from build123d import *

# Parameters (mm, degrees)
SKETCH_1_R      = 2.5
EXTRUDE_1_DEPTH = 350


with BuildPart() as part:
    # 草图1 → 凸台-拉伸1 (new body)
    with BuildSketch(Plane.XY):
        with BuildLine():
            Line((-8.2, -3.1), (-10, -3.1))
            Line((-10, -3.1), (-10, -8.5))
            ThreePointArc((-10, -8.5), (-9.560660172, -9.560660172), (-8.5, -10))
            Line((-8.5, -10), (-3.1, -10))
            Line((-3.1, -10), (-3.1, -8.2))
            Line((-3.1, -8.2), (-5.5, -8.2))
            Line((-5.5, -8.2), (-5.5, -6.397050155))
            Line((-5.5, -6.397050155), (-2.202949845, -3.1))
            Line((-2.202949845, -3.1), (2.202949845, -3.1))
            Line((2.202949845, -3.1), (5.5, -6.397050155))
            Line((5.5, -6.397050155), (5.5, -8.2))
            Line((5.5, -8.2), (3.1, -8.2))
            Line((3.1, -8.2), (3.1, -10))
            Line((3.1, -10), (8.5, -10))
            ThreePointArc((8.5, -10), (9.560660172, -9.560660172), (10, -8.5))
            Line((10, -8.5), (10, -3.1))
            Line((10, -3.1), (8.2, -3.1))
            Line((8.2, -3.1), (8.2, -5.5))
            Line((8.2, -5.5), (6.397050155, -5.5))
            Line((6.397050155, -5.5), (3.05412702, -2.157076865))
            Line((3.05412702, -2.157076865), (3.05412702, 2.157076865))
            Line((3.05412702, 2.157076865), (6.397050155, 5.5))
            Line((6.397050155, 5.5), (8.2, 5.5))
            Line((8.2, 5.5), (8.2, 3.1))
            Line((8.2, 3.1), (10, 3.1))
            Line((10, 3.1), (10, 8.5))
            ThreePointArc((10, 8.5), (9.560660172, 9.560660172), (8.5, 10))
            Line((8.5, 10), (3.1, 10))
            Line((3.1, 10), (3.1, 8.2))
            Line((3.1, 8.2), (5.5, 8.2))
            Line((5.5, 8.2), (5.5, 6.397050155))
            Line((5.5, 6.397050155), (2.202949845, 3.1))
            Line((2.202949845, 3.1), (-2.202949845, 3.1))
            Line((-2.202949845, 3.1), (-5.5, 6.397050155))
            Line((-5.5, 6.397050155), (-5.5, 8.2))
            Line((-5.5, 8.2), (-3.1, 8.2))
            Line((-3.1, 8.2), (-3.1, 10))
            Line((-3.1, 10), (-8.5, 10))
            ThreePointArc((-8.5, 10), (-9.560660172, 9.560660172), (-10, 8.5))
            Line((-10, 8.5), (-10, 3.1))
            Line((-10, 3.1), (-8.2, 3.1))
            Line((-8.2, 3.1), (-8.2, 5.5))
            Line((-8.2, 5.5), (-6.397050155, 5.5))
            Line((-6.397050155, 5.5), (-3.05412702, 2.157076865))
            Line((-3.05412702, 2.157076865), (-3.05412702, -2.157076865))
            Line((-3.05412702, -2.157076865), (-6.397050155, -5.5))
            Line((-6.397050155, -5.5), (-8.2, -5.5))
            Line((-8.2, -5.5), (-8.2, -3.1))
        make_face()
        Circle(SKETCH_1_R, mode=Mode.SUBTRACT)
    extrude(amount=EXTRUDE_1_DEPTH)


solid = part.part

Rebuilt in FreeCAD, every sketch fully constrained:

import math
import FreeCAD as App
import Part
import Sketcher

V = App.Vector
Q = App.Units.Quantity

doc = App.newDocument("Part")
params = doc.addObject("Spreadsheet::Sheet", "Params")
for row, (alias, value) in enumerate([
    ("sketch1_diameter", "5 mm"),
    ("sketch1_radius", "1.5 mm"),
    ("sketch1_width", "1.8 mm"),
    ("sketch1_width2", "5.4 mm"),
    ("sketch1_width3", "2.4 mm"),
    ("pad1_length", "350 mm"),
], start=1):
    params.set(f"A{row}", alias)
    params.set(f"B{row}", "=" + value)
    params.setAlias(f"B{row}", alias)

body = doc.addObject("PartDesign::Body", "Body")

sketch1 = body.newObject("Sketcher::SketchObject", "Sketch")
sketch1.AttachmentSupport = (doc.getObject("XY_Plane"), [""])
sketch1.MapMode = "FlatFace"
sketch1.addGeometry([
    Part.LineSegment(V(-8.2, -3.1, 0), V(-10, -3.1, 0)),
    Part.LineSegment(V(-10, -3.1, 0), V(-10, -8.5, 0)),
    Part.ArcOfCircle(Part.Circle(V(-8.5, -8.5, 0), V(0, 0, 1), 1.5), math.radians(180), math.radians(270)),
    Part.LineSegment(V(-8.5, -10, 0), V(-3.1, -10, 0)),
    Part.LineSegment(V(-3.1, -10, 0), V(-3.1, -8.2, 0)),
    Part.LineSegment(V(-3.1, -8.2, 0), V(-5.5, -8.2, 0)),
    Part.LineSegment(V(-5.5, -8.2, 0), V(-5.5, -6.4, 0)),
    Part.LineSegment(V(-5.5, -6.4, 0), V(-2.2, -3.1, 0)),
    Part.LineSegment(V(-2.2, -3.1, 0), V(2.2, -3.1, 0)),
    Part.LineSegment(V(2.2, -3.1, 0), V(5.5, -6.4, 0)),
    Part.LineSegment(V(5.5, -6.4, 0), V(5.5, -8.2, 0)),
    Part.LineSegment(V(5.5, -8.2, 0), V(3.1, -8.2, 0)),
    Part.LineSegment(V(3.1, -8.2, 0), V(3.1, -10, 0)),
    Part.LineSegment(V(3.1, -10, 0), V(8.5, -10, 0)),
    Part.ArcOfCircle(Part.Circle(V(8.5, -8.5, 0), V(0, 0, 1), 1.5), math.radians(-90), math.radians(0)),
    Part.LineSegment(V(10, -8.5, 0), V(10, -3.1, 0)),
    Part.LineSegment(V(10, -3.1, 0), V(8.2, -3.1, 0)),
    Part.LineSegment(V(8.2, -3.1, 0), V(8.2, -5.5, 0)),
    Part.LineSegment(V(8.2, -5.5, 0), V(6.4, -5.5, 0)),
    Part.LineSegment(V(6.4, -5.5, 0), V(3.1, -2.2, 0)),
    Part.LineSegment(V(3.1, -2.2, 0), V(3.1, 2.2, 0)),
    Part.LineSegment(V(3.1, 2.2, 0), V(6.4, 5.5, 0)),
    Part.LineSegment(V(6.4, 5.5, 0), V(8.2, 5.5, 0)),
    Part.LineSegment(V(8.2, 5.5, 0), V(8.2, 3.1, 0)),
    Part.LineSegment(V(8.2, 3.1, 0), V(10, 3.1, 0)),
    Part.LineSegment(V(10, 3.1, 0), V(10, 8.5, 0)),
    Part.ArcOfCircle(Part.Circle(V(8.5, 8.5, 0), V(0, 0, 1), 1.5), math.radians(0), math.radians(90)),
    Part.LineSegment(V(8.5, 10, 0), V(3.1, 10, 0)),
    Part.LineSegment(V(3.1, 10, 0), V(3.1, 8.2, 0)),
    Part.LineSegment(V(3.1, 8.2, 0), V(5.5, 8.2, 0)),
    Part.LineSegment(V(5.5, 8.2, 0), V(5.5, 6.4, 0)),
    Part.LineSegment(V(5.5, 6.4, 0), V(2.2, 3.1, 0)),
    Part.LineSegment(V(2.2, 3.1, 0), V(-2.2, 3.1, 0)),
    Part.LineSegment(V(-2.2, 3.1, 0), V(-5.5, 6.4, 0)),
    Part.LineSegment(V(-5.5, 6.4, 0), V(-5.5, 8.2, 0)),
    Part.LineSegment(V(-5.5, 8.2, 0), V(-3.1, 8.2, 0)),
    Part.LineSegment(V(-3.1, 8.2, 0), V(-3.1, 10, 0)),
    Part.LineSegment(V(-3.1, 10, 0), V(-8.5, 10, 0)),
    Part.ArcOfCircle(Part.Circle(V(-8.5, 8.5, 0), V(0, 0, 1), 1.5), math.radians(90), math.radians(180)),
    Part.LineSegment(V(-10, 8.5, 0), V(-10, 3.1, 0)),
    Part.LineSegment(V(-10, 3.1, 0), V(-8.2, 3.1, 0)),
    Part.LineSegment(V(-8.2, 3.1, 0), V(-8.2, 5.5, 0)),
    Part.LineSegment(V(-8.2, 5.5, 0), V(-6.4, 5.5, 0)),
    Part.LineSegment(V(-6.4, 5.5, 0), V(-3.1, 2.2, 0)),
    Part.LineSegment(V(-3.1, 2.2, 0), V(-3.1, -2.2, 0)),
    Part.LineSegment(V(-3.1, -2.2, 0), V(-6.4, -5.5, 0)),
    Part.LineSegment(V(-6.4, -5.5, 0), V(-8.2, -5.5, 0)),
    Part.LineSegment(V(-8.2, -5.5, 0), V(-8.2, -3.1, 0)),
    Part.Circle(V(0, 0, 0), V(0, 0, 1), 2.5),
], False)
sketch1.addConstraint([
    Sketcher.Constraint("Coincident", 0, 2, 1, 1),
    Sketcher.Constraint("Tangent", 1, 2, 2, 1),
    Sketcher.Constraint("Tangent", 2, 2, 3, 1),
    Sketcher.Constraint("Coincident", 3, 2, 4, 1),
    Sketcher.Constraint("Coincident", 4, 2, 5, 1),
    Sketcher.Constraint("Coincident", 5, 2, 6, 1),
    Sketcher.Constraint("Coincident", 6, 2, 7, 1),
    Sketcher.Constraint("Coincident", 7, 2, 8, 1),
    Sketcher.Constraint("Coincident", 8, 2, 9, 1),
    Sketcher.Constraint("Coincident", 9, 2, 10, 1),
    Sketcher.Constraint("Coincident", 10, 2, 11, 1),
    Sketcher.Constraint("Coincident", 11, 2, 12, 1),
    Sketcher.Constraint("Coincident", 12, 2, 13, 1),
    Sketcher.Constraint("Tangent", 13, 2, 14, 1),
    Sketcher.Constraint("Tangent", 14, 2, 15, 1),
    Sketcher.Constraint("Coincident", 15, 2, 16, 1),
    Sketcher.Constraint("Coincident", 16, 2, 17, 1),
    Sketcher.Constraint("Coincident", 17, 2, 18, 1),
    Sketcher.Constraint("Coincident", 18, 2, 19, 1),
    Sketcher.Constraint("Coincident", 19, 2, 20, 1),
    Sketcher.Constraint("Coincident", 20, 2, 21, 1),
    Sketcher.Constraint("Coincident", 21, 2, 22, 1),
    Sketcher.Constraint("Coincident", 22, 2, 23, 1),
    Sketcher.Constraint("Coincident", 23, 2, 24, 1),
    Sketcher.Constraint("Coincident", 24, 2, 25, 1),
    Sketcher.Constraint("Tangent", 25, 2, 26, 1),
    Sketcher.Constraint("Tangent", 26, 2, 27, 1),
    Sketcher.Constraint("Coincident", 27, 2, 28, 1),
    Sketcher.Constraint("Coincident", 28, 2, 29, 1),
    Sketcher.Constraint("Coincident", 29, 2, 30, 1),
    Sketcher.Constraint("Coincident", 30, 2, 31, 1),
    Sketcher.Constraint("Coincident", 31, 2, 32, 1),
    Sketcher.Constraint("Coincident", 32, 2, 33, 1),
    Sketcher.Constraint("Coincident", 33, 2, 34, 1),
    Sketcher.Constraint("Coincident", 34, 2, 35, 1),
    Sketcher.Constraint("Coincident", 35, 2, 36, 1),
    Sketcher.Constraint("Coincident", 36, 2, 37, 1),
    Sketcher.Constraint("Tangent", 37, 2, 38, 1),
    Sketcher.Constraint("Tangent", 38, 2, 39, 1),
    Sketcher.Constraint("Coincident", 39, 2, 40, 1),
    Sketcher.Constraint("Coincident", 40, 2, 41, 1),
    Sketcher.Constraint("Coincident", 41, 2, 42, 1),
    Sketcher.Constraint("Coincident", 42, 2, 43, 1),
    Sketcher.Constraint("Coincident", 43, 2, 44, 1),
    Sketcher.Constraint("Coincident", 44, 2, 45, 1),
    Sketcher.Constraint("Coincident", 45, 2, 46, 1),
    Sketcher.Constraint("Coincident", 46, 2, 47, 1),
    Sketcher.Constraint("Coincident", 47, 2, 0, 1),
    Sketcher.Constraint("Horizontal", 0),
    Sketcher.Constraint("Vertical", 1),
    Sketcher.Constraint("Horizontal", 3),
    Sketcher.Constraint("Vertical", 4),
    Sketcher.Constraint("Horizontal", 5),
    Sketcher.Constraint("Vertical", 6),
    Sketcher.Constraint("Horizontal", 8),
    Sketcher.Constraint("Vertical", 10),
    Sketcher.Constraint("Horizontal", 11),
    Sketcher.Constraint("Vertical", 12),
    Sketcher.Constraint("Horizontal", 13),
    Sketcher.Constraint("Vertical", 15),
    Sketcher.Constraint("Horizontal", 16),
    Sketcher.Constraint("Vertical", 17),
    Sketcher.Constraint("Horizontal", 18),
    Sketcher.Constraint("Vertical", 20),
    Sketcher.Constraint("Horizontal", 22),
    Sketcher.Constraint("Vertical", 23),
    Sketcher.Constraint("Horizontal", 24),
    Sketcher.Constraint("Vertical", 25),
    Sketcher.Constraint("Horizontal", 27),
    Sketcher.Constraint("Vertical", 28),
    Sketcher.Constraint("Horizontal", 29),
    Sketcher.Constraint("Vertical", 30),
    Sketcher.Constraint("Horizontal", 32),
    Sketcher.Constraint("Vertical", 34),
    Sketcher.Constraint("Horizontal", 35),
    Sketcher.Constraint("Vertical", 36),
    Sketcher.Constraint("Horizontal", 37),
    Sketcher.Constraint("Vertical", 39),
    Sketcher.Constraint("Horizontal", 40),
    Sketcher.Constraint("Vertical", 41),
    Sketcher.Constraint("Horizontal", 42),
    Sketcher.Constraint("Vertical", 44),
    Sketcher.Constraint("Horizontal", 46),
    Sketcher.Constraint("Vertical", 47),
    Sketcher.Constraint("Coincident", 48, 3, -1, 1),
    Sketcher.Constraint("Equal", 2, 14),
    Sketcher.Constraint("Equal", 14, 26),
    Sketcher.Constraint("Equal", 26, 38),
    Sketcher.Constraint("Symmetric", 2, 3, 26, 3, -1, 1),
    Sketcher.Constraint("Symmetric", 14, 3, 38, 3, -1, 1),
    Sketcher.Constraint("Symmetric", 4, 2, 28, 2, -1, 1),
    Sketcher.Constraint("Symmetric", 6, 2, 30, 2, -1, 1),
    Sketcher.Constraint("Symmetric", 7, 2, 31, 2, -1, 1),
    Sketcher.Constraint("Symmetric", 9, 2, 33, 2, -1, 1),
    Sketcher.Constraint("Symmetric", 11, 2, 35, 2, -1, 1),
    Sketcher.Constraint("Symmetric", 16, 2, 40, 2, -1, 1),
    Sketcher.Constraint("Symmetric", 18, 2, 42, 2, -1, 1),
    Sketcher.Constraint("Symmetric", 19, 2, 43, 2, -1, 1),
    Sketcher.Constraint("Symmetric", 21, 2, 45, 2, -1, 1),
    Sketcher.Constraint("Symmetric", 23, 2, 47, 2, -1, 1),
    Sketcher.Constraint("Symmetric", 2, 3, 14, 3, -2),
    Sketcher.Constraint("Symmetric", 6, 2, 9, 2, -2),
    Sketcher.Constraint("Symmetric", 4, 2, 11, 2, -2),
    Sketcher.Constraint("Symmetric", 23, 2, 40, 2, -2),
    Sketcher.Constraint("Symmetric", 21, 2, 42, 2, -2),
    Sketcher.Constraint("Perpendicular", 7, 9),
    Sketcher.Constraint("Parallel", 9, 19),
    Sketcher.Constraint("Perpendicular", 19, 21),
    Sketcher.Constraint("Perpendicular", 31, 33),
    Sketcher.Constraint("Perpendicular", 43, 45),
    Sketcher.Constraint("Horizontal", 0, 2, 7, 2),
    Sketcher.Constraint("Horizontal", 20, 2, 43, 2),
    Sketcher.Constraint("Equal", 37, 1),
    Sketcher.Constraint("Equal", 40, 4),
    Sketcher.Constraint("Equal", 46, 6),
    Sketcher.Constraint("Equal", 35, 17),
    Sketcher.Constraint("Diameter", 48, Q("5 mm")),
    Sketcher.Constraint("Radius", 2, Q("1.5 mm")),
    Sketcher.Constraint("DistanceX", 0, 2, 0, 1, Q("1.8 mm")),
    Sketcher.Constraint("DistanceX", 3, 1, 3, 2, Q("5.4 mm")),
    Sketcher.Constraint("DistanceX", 5, 2, 5, 1, Q("2.4 mm")),
    Sketcher.Constraint("DistanceX", 0, 2, -1, 1, Q("10 mm")),
    Sketcher.Constraint("DistanceY", 2, 2, -1, 1, Q("10 mm")),
    Sketcher.Constraint("DistanceX", 8, 1, 8, 2, Q("4.4059 mm")),
    Sketcher.Constraint("DistanceY", 20, 1, 20, 2, Q("4.314154 mm")),
])
sketch1.setExpression("Constraints[116]", "Params.sketch1_diameter")
sketch1.setExpression("Constraints[117]", "Params.sketch1_radius")
sketch1.setExpression("Constraints[118]", "Params.sketch1_width")
sketch1.setExpression("Constraints[119]", "Params.sketch1_width2")
sketch1.setExpression("Constraints[120]", "Params.sketch1_width3")
pad1 = body.newObject("PartDesign::Pad", "Pad")
pad1.Profile = sketch1
pad1.setExpression("Length", "Params.pad1_length")

doc.recompute()
